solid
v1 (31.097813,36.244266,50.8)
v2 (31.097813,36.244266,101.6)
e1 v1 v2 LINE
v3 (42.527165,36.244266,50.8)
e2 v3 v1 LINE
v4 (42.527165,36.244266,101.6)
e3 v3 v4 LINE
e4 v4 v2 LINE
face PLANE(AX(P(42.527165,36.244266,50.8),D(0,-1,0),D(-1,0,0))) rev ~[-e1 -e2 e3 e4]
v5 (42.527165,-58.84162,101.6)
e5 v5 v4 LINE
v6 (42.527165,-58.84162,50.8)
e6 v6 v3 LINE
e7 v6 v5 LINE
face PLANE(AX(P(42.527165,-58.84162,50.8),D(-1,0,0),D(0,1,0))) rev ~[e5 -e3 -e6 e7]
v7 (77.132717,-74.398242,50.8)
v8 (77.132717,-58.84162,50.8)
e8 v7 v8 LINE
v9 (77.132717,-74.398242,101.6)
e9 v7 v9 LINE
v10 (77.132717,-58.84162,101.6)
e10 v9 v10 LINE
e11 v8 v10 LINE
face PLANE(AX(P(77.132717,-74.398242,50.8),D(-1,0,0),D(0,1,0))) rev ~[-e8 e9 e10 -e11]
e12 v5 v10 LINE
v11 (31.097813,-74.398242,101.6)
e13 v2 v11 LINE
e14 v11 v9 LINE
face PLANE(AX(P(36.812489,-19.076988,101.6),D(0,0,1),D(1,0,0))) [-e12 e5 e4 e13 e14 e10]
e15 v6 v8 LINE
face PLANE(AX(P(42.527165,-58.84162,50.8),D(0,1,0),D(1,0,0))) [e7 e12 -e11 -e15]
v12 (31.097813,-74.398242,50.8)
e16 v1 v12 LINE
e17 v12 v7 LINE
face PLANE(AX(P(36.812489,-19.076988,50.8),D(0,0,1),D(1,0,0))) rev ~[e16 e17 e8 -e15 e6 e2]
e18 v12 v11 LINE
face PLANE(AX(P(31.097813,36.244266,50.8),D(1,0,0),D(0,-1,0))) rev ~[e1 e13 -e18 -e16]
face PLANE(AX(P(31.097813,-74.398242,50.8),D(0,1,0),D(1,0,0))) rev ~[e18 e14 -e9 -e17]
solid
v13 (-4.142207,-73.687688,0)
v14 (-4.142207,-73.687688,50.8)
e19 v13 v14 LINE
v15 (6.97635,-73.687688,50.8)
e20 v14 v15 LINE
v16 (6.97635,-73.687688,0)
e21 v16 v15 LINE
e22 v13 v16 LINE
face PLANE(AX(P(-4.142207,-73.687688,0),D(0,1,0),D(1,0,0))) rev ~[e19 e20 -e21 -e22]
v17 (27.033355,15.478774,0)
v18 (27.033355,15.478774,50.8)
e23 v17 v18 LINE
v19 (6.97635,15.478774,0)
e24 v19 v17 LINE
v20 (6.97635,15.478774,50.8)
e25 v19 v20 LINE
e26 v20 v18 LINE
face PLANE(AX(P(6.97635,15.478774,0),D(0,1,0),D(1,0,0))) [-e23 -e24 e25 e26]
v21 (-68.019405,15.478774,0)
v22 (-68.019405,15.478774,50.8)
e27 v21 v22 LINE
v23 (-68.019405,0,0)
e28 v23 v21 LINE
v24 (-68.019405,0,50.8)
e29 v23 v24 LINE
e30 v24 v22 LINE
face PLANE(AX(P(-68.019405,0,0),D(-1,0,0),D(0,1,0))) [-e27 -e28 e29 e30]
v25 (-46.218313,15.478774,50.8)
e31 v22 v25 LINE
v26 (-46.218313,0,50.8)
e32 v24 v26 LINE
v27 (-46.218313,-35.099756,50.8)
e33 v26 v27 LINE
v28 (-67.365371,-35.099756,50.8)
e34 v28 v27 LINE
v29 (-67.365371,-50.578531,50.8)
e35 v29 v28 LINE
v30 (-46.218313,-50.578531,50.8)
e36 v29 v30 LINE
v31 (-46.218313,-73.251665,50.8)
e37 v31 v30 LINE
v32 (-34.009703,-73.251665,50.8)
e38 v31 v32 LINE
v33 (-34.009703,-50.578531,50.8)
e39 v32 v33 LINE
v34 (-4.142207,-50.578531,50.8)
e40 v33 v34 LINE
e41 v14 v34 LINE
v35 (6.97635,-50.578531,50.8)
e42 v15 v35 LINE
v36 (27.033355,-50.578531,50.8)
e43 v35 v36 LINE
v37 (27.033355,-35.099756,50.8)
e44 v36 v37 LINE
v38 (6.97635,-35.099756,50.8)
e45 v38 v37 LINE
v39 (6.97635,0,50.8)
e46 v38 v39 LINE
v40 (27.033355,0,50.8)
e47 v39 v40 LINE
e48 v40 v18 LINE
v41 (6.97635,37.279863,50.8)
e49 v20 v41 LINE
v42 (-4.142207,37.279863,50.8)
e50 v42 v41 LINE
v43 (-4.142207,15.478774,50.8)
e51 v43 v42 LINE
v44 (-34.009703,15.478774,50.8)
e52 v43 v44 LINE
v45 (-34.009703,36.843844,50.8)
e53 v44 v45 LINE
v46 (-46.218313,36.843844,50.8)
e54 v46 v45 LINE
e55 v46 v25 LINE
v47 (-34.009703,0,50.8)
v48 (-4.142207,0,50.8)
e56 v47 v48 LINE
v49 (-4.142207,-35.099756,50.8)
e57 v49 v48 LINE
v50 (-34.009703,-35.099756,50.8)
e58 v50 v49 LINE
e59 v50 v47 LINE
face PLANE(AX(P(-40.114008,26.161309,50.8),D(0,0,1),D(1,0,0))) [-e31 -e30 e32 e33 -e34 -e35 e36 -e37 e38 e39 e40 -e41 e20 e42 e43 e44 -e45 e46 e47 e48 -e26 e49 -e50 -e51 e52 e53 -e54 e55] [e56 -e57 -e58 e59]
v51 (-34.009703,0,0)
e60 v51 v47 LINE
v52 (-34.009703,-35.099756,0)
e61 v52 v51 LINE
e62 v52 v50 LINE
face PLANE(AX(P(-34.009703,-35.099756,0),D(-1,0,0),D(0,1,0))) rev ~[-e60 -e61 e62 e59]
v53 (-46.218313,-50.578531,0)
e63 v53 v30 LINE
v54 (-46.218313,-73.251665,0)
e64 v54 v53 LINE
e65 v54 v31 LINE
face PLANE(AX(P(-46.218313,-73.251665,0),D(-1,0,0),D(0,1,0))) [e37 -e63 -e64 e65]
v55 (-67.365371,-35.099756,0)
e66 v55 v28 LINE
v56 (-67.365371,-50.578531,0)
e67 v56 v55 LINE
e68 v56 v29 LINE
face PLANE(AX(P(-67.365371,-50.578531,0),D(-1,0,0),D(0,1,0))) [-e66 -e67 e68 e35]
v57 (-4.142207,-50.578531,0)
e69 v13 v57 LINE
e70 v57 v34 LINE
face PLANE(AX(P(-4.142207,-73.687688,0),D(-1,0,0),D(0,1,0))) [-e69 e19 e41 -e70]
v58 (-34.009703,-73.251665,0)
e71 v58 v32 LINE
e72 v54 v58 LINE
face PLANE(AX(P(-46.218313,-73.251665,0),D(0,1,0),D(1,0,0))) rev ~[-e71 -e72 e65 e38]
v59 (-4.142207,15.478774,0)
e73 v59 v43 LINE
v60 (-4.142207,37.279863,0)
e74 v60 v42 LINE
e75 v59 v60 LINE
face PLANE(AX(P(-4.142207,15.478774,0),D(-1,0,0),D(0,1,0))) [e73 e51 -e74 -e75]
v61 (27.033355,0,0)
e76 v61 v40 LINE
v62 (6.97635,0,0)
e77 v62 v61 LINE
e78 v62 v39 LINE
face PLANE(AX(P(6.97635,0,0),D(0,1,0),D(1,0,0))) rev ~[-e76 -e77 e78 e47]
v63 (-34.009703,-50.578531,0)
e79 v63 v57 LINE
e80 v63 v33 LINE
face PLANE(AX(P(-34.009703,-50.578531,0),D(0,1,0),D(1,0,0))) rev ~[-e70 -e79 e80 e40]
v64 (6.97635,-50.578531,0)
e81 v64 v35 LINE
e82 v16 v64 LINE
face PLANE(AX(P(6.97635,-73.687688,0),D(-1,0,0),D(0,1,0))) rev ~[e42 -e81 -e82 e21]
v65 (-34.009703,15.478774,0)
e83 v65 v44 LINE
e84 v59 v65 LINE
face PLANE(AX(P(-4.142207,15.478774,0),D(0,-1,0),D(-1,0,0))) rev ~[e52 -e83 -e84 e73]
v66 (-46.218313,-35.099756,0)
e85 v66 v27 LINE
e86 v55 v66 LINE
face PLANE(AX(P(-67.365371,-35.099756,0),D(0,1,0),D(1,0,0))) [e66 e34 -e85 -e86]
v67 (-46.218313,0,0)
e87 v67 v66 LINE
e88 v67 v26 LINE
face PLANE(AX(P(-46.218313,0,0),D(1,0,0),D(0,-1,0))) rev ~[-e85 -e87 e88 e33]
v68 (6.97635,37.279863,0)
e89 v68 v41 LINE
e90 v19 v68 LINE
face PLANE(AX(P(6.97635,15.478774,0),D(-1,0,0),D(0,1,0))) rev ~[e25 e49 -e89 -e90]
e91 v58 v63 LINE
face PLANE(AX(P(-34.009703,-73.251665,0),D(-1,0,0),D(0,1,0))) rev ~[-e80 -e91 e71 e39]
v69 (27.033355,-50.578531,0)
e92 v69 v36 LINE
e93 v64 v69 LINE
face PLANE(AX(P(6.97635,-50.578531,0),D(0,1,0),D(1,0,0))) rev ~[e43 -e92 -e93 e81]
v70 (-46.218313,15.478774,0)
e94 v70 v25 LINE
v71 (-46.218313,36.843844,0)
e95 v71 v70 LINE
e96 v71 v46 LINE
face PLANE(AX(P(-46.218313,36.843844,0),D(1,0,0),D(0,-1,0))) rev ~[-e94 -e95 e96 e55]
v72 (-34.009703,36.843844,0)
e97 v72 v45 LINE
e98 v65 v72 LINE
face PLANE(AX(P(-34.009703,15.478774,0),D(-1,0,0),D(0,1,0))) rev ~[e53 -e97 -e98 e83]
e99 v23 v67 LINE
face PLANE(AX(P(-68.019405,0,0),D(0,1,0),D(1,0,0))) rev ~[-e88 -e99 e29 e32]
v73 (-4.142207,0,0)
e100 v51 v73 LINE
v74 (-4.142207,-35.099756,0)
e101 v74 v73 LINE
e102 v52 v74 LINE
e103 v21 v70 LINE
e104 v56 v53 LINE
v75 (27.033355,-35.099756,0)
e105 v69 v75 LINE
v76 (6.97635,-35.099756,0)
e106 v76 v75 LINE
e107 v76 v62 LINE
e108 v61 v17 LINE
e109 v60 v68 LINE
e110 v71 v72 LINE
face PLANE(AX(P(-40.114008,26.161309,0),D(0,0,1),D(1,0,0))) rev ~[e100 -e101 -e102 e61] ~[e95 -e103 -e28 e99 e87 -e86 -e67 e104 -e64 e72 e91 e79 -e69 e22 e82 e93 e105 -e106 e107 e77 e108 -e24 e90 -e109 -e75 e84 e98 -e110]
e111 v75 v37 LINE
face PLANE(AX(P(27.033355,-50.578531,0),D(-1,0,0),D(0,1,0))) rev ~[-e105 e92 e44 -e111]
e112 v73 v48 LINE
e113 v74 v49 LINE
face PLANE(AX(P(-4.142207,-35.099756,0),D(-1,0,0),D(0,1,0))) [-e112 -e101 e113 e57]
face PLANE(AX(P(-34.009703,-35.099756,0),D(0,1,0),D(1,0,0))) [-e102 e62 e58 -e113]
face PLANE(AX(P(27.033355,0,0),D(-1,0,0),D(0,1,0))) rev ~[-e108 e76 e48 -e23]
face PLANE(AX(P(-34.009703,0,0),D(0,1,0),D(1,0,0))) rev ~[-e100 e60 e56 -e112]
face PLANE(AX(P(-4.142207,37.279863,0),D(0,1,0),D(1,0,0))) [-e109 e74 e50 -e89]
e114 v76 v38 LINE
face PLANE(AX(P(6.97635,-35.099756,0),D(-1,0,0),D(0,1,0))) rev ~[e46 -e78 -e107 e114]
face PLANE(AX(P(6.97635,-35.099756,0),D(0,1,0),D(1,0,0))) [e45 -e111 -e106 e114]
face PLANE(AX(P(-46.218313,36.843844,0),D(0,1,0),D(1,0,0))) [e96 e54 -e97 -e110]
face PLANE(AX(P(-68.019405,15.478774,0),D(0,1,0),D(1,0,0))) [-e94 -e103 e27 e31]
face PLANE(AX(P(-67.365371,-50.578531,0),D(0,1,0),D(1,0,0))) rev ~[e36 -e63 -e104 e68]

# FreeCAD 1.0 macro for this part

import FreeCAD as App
import Part
import Sketcher
from FreeCAD import Vector
Q = App.Units.Quantity

doc = App.newDocument("Part")
body = doc.addObject("PartDesign::Body", "Body")

# Sketch on XY plane
sketch1 = body.newObject("Sketcher::SketchObject", "Sketch")
sketch1.AttachmentSupport = (doc.getObject("XY_Plane"), [""])
sketch1.MapMode = "FlatFace"
sketch1.addGeometry([
    Part.LineSegment(Vector(-34.009703, -50.578531, 0), Vector(-4.142207, -50.578531, 0)),  # 0
    Part.LineSegment(Vector(-4.142207, -50.578531, 0), Vector(-4.142207, -73.687688, 0)),  # 1
    Part.LineSegment(Vector(-4.142207, -73.687688, 0), Vector(6.97635, -73.687688, 0)),  # 2
    Part.LineSegment(Vector(6.97635, -73.687688, 0), Vector(6.97635, -50.578531, 0)),  # 3
    Part.LineSegment(Vector(6.97635, -50.578531, 0), Vector(27.033355, -50.578531, 0)),  # 4
    Part.LineSegment(Vector(27.033355, -50.578531, 0), Vector(27.033355, -35.099756, 0)),  # 5
    Part.LineSegment(Vector(27.033355, -35.099756, 0), Vector(6.97635, -35.099756, 0)),  # 6
    Part.LineSegment(Vector(6.97635, -35.099756, 0), Vector(6.97635, 0, 0)),  # 7
    Part.LineSegment(Vector(6.97635, 0, 0), Vector(27.033355, 0, 0)),  # 8
    Part.LineSegment(Vector(27.033355, 0, 0), Vector(27.033355, 15.478774, 0)),  # 9
    Part.LineSegment(Vector(27.033355, 15.478774, 0), Vector(6.97635, 15.478774, 0)),  # 10
    Part.LineSegment(Vector(6.97635, 15.478774, 0), Vector(6.97635, 37.279863, 0)),  # 11
    Part.LineSegment(Vector(6.97635, 37.279863, 0), Vector(-4.142207, 37.279863, 0)),  # 12
    Part.LineSegment(Vector(-4.142207, 37.279863, 0), Vector(-4.142207, 15.478774, 0)),  # 13
    Part.LineSegment(Vector(-4.142207, 15.478774, 0), Vector(-34.009703, 15.478774, 0)),  # 14
    Part.LineSegment(Vector(-34.009703, 15.478774, 0), Vector(-34.009703, 36.843844, 0)),  # 15
    Part.LineSegment(Vector(-34.009703, 36.843844, 0), Vector(-46.218313, 36.843844, 0)),  # 16
    Part.LineSegment(Vector(-46.218313, 36.843844, 0), Vector(-46.218313, 15.478774, 0)),  # 17
    Part.LineSegment(Vector(-46.218313, 15.478774, 0), Vector(-68.019405, 15.478774, 0)),  # 18
    Part.LineSegment(Vector(-68.019405, 15.478774, 0), Vector(-68.019405, 0, 0)),  # 19
    Part.LineSegment(Vector(-68.019405, 0, 0), Vector(-46.218313, 0, 0)),  # 20
    Part.LineSegment(Vector(-46.218313, 0, 0), Vector(-46.218313, -35.099756, 0)),  # 21
    Part.LineSegment(Vector(-46.218313, -35.099756, 0), Vector(-67.365371, -35.099756, 0)),  # 22
    Part.LineSegment(Vector(-67.365371, -35.099756, 0), Vector(-67.365371, -50.578531, 0)),  # 23
    Part.LineSegment(Vector(-67.365371, -50.578531, 0), Vector(-46.218313, -50.578531, 0)),  # 24
    Part.LineSegment(Vector(-46.218313, -50.578531, 0), Vector(-46.218313, -73.251665, 0)),  # 25
    Part.LineSegment(Vector(-46.218313, -73.251665, 0), Vector(-34.009703, -73.251665, 0)),  # 26
    Part.LineSegment(Vector(-34.009703, -73.251665, 0), Vector(-34.009703, -50.578531, 0)),  # 27
    Part.LineSegment(Vector(-4.142207, -35.099756, 0), Vector(-34.009703, -35.099756, 0)),  # 28
    Part.LineSegment(Vector(-34.009703, -35.099756, 0), Vector(-34.009703, 0, 0)),  # 29
    Part.LineSegment(Vector(-34.009703, 0, 0), Vector(-4.142207, 0, 0)),  # 30
    Part.LineSegment(Vector(-4.142207, 0, 0), Vector(-4.142207, -35.099756, 0)),  # 31
], False)
sketch1.addConstraint([
    Sketcher.Constraint("Coincident", 0, 2, 1, 1),
    Sketcher.Constraint("Coincident", 1, 2, 2, 1),
    Sketcher.Constraint("Coincident", 2, 2, 3, 1),
    Sketcher.Constraint("Coincident", 3, 2, 4, 1),
    Sketcher.Constraint("Coincident", 4, 2, 5, 1),
    Sketcher.Constraint("Coincident", 5, 2, 6, 1),
    Sketcher.Constraint("Coincident", 6, 2, 7, 1),
    Sketcher.Constraint("Coincident", 7, 2, 8, 1),
    Sketcher.Constraint("Coincident", 8, 2, 9, 1),
    Sketcher.Constraint("Coincident", 9, 2, 10, 1),
    Sketcher.Constraint("Coincident", 10, 2, 11, 1),
    Sketcher.Constraint("Coincident", 11, 2, 12, 1),
    Sketcher.Constraint("Coincident", 12, 2, 13, 1),
    Sketcher.Constraint("Coincident", 13, 2, 14, 1),
    Sketcher.Constraint("Coincident", 14, 2, 15, 1),
    Sketcher.Constraint("Coincident", 15, 2, 16, 1),
    Sketcher.Constraint("Coincident", 16, 2, 17, 1),
    Sketcher.Constraint("Coincident", 17, 2, 18, 1),
    Sketcher.Constraint("Coincident", 18, 2, 19, 1),
    Sketcher.Constraint("Coincident", 19, 2, 20, 1),
    Sketcher.Constraint("Coincident", 20, 2, 21, 1),
    Sketcher.Constraint("Coincident", 21, 2, 22, 1),
    Sketcher.Constraint("Coincident", 22, 2, 23, 1),
    Sketcher.Constraint("Coincident", 23, 2, 24, 1),
    Sketcher.Constraint("Coincident", 24, 2, 25, 1),
    Sketcher.Constraint("Coincident", 25, 2, 26, 1),
    Sketcher.Constraint("Coincident", 26, 2, 27, 1),
    Sketcher.Constraint("Coincident", 27, 2, 0, 1),
    Sketcher.Constraint("Coincident", 28, 2, 29, 1),
    Sketcher.Constraint("Coincident", 29, 2, 30, 1),
    Sketcher.Constraint("Coincident", 30, 2, 31, 1),
    Sketcher.Constraint("Coincident", 31, 2, 28, 1),
    Sketcher.Constraint("Horizontal", 0),
    Sketcher.Constraint("Vertical", 1),
    Sketcher.Constraint("Horizontal", 2),
    Sketcher.Constraint("Vertical", 3),
    Sketcher.Constraint("Horizontal", 4),
    Sketcher.Constraint("Vertical", 5),
    Sketcher.Constraint("Horizontal", 6),
    Sketcher.Constraint("Vertical", 7),
    Sketcher.Constraint("Horizontal", 8),
    Sketcher.Constraint("Vertical", 9),
    Sketcher.Constraint("Horizontal", 10),
    Sketcher.Constraint("Vertical", 11),
    Sketcher.Constraint("Horizontal", 12),
    Sketcher.Constraint("Vertical", 13),
    Sketcher.Constraint("Horizontal", 14),
    Sketcher.Constraint("Vertical", 15),
    Sketcher.Constraint("Horizontal", 16),
    Sketcher.Constraint("Vertical", 17),
    Sketcher.Constraint("Horizontal", 18),
    Sketcher.Constraint("Vertical", 19),
    Sketcher.Constraint("Horizontal", 20),
    Sketcher.Constraint("Vertical", 21),
    Sketcher.Constraint("Horizontal", 22),
    Sketcher.Constraint("Vertical", 23),
    Sketcher.Constraint("Horizontal", 24),
    Sketcher.Constraint("Vertical", 25),
    Sketcher.Constraint("Horizontal", 26),
    Sketcher.Constraint("Vertical", 27),
    Sketcher.Constraint("Horizontal", 28),
    Sketcher.Constraint("Vertical", 29),
    Sketcher.Constraint("Horizontal", 30),
    Sketcher.Constraint("Vertical", 31),
    Sketcher.Constraint("PointOnObject", 7, 2, -1),
    Sketcher.Constraint("PointOnObject", 19, 2, -1),
    Sketcher.Constraint("PointOnObject", 29, 2, -1),
    Sketcher.Constraint("Horizontal", 0, 2, 3, 2),
    Sketcher.Constraint("Horizontal", 10, 2, 13, 2),
    Sketcher.Constraint("Horizontal", 14, 2, 17, 2),
    Sketcher.Constraint("Horizontal", 6, 2, 21, 2),
    Sketcher.Constraint("Horizontal", 4, 2, 23, 2),
    Sketcher.Constraint("Horizontal", 22, 2, 28, 2),
    Sketcher.Constraint("Vertical", 3, 2, 6, 2),
    Sketcher.Constraint("Vertical", 5, 2, 8, 2),
    Sketcher.Constraint("Vertical", 7, 2, 10, 2),
    Sketcher.Constraint("Vertical", 1, 2, 12, 2),
    Sketcher.Constraint("Vertical", 17, 2, 20, 2),
    Sketcher.Constraint("Vertical", 21, 2, 24, 2),
    Sketcher.Constraint("Vertical", 15, 2, 26, 2),
    Sketcher.Constraint("Vertical", 27, 2, 28, 2),
    Sketcher.Constraint("Vertical", 13, 2, 30, 2),
    Sketcher.Constraint("Equal", 5, 9),
    Sketcher.Constraint("DistanceX", 16, 2, 16, 1, Q("12.208611 mm")),
    Sketcher.Constraint("DistanceX", 18, 2, 18, 1, Q("21.801092 mm")),
    Sketcher.Constraint("DistanceY", 11, 1, 11, 2, Q("21.801089 mm")),
    Sketcher.Constraint("DistanceY", 15, 1, 15, 2, Q("21.36507 mm")),
    Sketcher.Constraint("DistanceX", 18, 2, 13, 2, Q("63.877198 mm")),
    Sketcher.Constraint("DistanceX", 2, 1, 2, 2, Q("11.118556 mm")),
    Sketcher.Constraint("DistanceX", 4, 1, 4, 2, Q("20.057005 mm")),
    Sketcher.Constraint("DistanceX", 22, 2, 22, 1, Q("21.147057 mm")),
    Sketcher.Constraint("DistanceY", 1, 2, 1, 1, Q("23.109157 mm")),
    Sketcher.Constraint("DistanceY", 5, 1, 5, 2, Q("15.478775 mm")),
    Sketcher.Constraint("DistanceY", 7, 1, 7, 2, Q("35.099756 mm")),
    Sketcher.Constraint("DistanceY", 25, 2, 25, 1, Q("22.673134 mm")),
    Sketcher.Constraint("DistanceX", -1, 1, 2, 2, Q("6.97635 mm")),
])
pad1 = body.newObject("PartDesign::Pad", "Pad")
pad1.Profile = sketch1
pad1.Length = Q("2 in")
body2 = doc.addObject("PartDesign::Body", "Body001")

# Sketch on XY plane
sketch2 = body2.newObject("Sketcher::SketchObject", "Sketch001")
sketch2.AttachmentSupport = (doc.getObject("XY_Plane001"), [""])
sketch2.MapMode = "FlatFace"
sketch2.AttachmentOffset = App.Placement(Vector(0, 0, 2 * 25.4), App.Rotation())
sketch2.addGeometry([
    Part.LineSegment(Vector(42.527165, 36.244266, 0), Vector(31.097813, 36.244266, 0)),  # 0
    Part.LineSegment(Vector(31.097813, 36.244266, 0), Vector(31.097813, -74.398242, 0)),  # 1
    Part.LineSegment(Vector(31.097813, -74.398242, 0), Vector(77.132717, -74.398242, 0)),  # 2
    Part.LineSegment(Vector(77.132717, -74.398242, 0), Vector(77.132717, -58.84162, 0)),  # 3
    Part.LineSegment(Vector(77.132717, -58.84162, 0), Vector(42.527165, -58.84162, 0)),  # 4
    Part.LineSegment(Vector(42.527165, -58.84162, 0), Vector(42.527165, 36.244266, 0)),  # 5
], False)
sketch2.addConstraint([
    Sketcher.Constraint("Coincident", 0, 2, 1, 1),
    Sketcher.Constraint("Coincident", 1, 2, 2, 1),
    Sketcher.Constraint("Coincident", 2, 2, 3, 1),
    Sketcher.Constraint("Coincident", 3, 2, 4, 1),
    Sketcher.Constraint("Coincident", 4, 2, 5, 1),
    Sketcher.Constraint("Coincident", 5, 2, 0, 1),
    Sketcher.Constraint("Horizontal", 0),
    Sketcher.Constraint("Vertical", 1),
    Sketcher.Constraint("Horizontal", 2),
    Sketcher.Constraint("Vertical", 3),
    Sketcher.Constraint("Horizontal", 4),
    Sketcher.Constraint("Vertical", 5),
    Sketcher.Constraint("DistanceX", 4, 2, 4, 1, Q("34.605552 mm")),
    Sketcher.Constraint("DistanceX", 0, 2, 0, 1, Q("11.429353 mm")),
    Sketcher.Constraint("DistanceY", 1, 2, 1, 1, Q("110.642508 mm")),
    Sketcher.Constraint("DistanceY", 3, 1, 3, 2, Q("15.556622 mm")),
    Sketcher.Constraint("DistanceY", 1, 2, -1, 1, Q("74.398242 mm")),
    Sketcher.Constraint("DistanceX", -1, 1, 0, 2, Q("31.097813 mm")),
])
pad2 = body2.newObject("PartDesign::Pad", "Pad001")
pad2.Profile = sketch2
pad2.Length = Q("2 in")

doc.recompute()
